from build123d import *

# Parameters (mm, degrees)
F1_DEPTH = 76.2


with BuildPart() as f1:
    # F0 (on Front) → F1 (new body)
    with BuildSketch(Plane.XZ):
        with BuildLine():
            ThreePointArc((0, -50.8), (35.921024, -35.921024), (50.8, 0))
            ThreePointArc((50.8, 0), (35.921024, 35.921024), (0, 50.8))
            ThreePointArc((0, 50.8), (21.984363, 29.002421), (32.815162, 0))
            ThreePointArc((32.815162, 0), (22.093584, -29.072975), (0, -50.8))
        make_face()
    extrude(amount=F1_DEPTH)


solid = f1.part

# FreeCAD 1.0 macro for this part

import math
import FreeCAD as App
import Part
import Sketcher
from FreeCAD import Vector
Q = App.Units.Quantity

doc = App.newDocument("Part")
body = doc.addObject("PartDesign::Body", "Body")

# Sketch on XZ plane
sketch1 = body.newObject("Sketcher::SketchObject", "Sketch")
sketch1.AttachmentSupport = (doc.getObject("XZ_Plane"), [""])
sketch1.MapMode = "FlatFace"
sketch1.addGeometry([
    Part.ArcOfCircle(Part.Circle(Vector(-0.000002, 0.000002, 0), Vector(0, 0, 1), 50.800002), math.radians(-89.999998), math.radians(-0.000002)),
    Part.ArcOfCircle(Part.Circle(Vector(-0.000002, -0.000002, 0), Vector(0, 0, 1), 50.800002), math.radians(0.000002), math.radians(89.999998)),
    Part.ArcOfCircle(Part.Circle(Vector(-38.647424, -10.163758, 0), Vector(0, 0, 1), 72.181737), math.radians(8.094598), math.radians(57.627715)),
    Part.ArcOfCircle(Part.Circle(Vector(-37.481711, 9.410745, 0), Vector(0, 0, 1), 70.92399), math.radians(-58.097378), math.radians(-7.624935)),
], False)
sketch1.addConstraint([
    Sketcher.Constraint("Tangent", 0, 2, 1, 1),
    Sketcher.Constraint("Coincident", 1, 2, 2, 2),
    Sketcher.Constraint("Coincident", 2, 1, 3, 2),
    Sketcher.Constraint("Coincident", 3, 1, 0, 1),
    Sketcher.Constraint("Coincident", 0, 3, -1, 1),
    Sketcher.Constraint("Equal", 0, 1),
    Sketcher.Constraint("PointOnObject", 0, 2, -1),
    Sketcher.Constraint("PointOnObject", 1, 2, -2),
    Sketcher.Constraint("PointOnObject", 2, 1, -1),
    Sketcher.Constraint("PointOnObject", 3, 1, -2),
    Sketcher.Constraint("Radius", 0, Q("2.0000001 in")),
    Sketcher.Constraint("Radius", 3, 70.92399),
    Sketcher.Constraint("Radius", 2, 72.181737),
    Sketcher.Constraint("DistanceY", 2, 3, -1, 1, 10.163758),
])
pad1 = body.newObject("PartDesign::Pad", "Pad")
pad1.Profile = sketch1
pad1.Length = Q("3 in")

doc.recompute()
